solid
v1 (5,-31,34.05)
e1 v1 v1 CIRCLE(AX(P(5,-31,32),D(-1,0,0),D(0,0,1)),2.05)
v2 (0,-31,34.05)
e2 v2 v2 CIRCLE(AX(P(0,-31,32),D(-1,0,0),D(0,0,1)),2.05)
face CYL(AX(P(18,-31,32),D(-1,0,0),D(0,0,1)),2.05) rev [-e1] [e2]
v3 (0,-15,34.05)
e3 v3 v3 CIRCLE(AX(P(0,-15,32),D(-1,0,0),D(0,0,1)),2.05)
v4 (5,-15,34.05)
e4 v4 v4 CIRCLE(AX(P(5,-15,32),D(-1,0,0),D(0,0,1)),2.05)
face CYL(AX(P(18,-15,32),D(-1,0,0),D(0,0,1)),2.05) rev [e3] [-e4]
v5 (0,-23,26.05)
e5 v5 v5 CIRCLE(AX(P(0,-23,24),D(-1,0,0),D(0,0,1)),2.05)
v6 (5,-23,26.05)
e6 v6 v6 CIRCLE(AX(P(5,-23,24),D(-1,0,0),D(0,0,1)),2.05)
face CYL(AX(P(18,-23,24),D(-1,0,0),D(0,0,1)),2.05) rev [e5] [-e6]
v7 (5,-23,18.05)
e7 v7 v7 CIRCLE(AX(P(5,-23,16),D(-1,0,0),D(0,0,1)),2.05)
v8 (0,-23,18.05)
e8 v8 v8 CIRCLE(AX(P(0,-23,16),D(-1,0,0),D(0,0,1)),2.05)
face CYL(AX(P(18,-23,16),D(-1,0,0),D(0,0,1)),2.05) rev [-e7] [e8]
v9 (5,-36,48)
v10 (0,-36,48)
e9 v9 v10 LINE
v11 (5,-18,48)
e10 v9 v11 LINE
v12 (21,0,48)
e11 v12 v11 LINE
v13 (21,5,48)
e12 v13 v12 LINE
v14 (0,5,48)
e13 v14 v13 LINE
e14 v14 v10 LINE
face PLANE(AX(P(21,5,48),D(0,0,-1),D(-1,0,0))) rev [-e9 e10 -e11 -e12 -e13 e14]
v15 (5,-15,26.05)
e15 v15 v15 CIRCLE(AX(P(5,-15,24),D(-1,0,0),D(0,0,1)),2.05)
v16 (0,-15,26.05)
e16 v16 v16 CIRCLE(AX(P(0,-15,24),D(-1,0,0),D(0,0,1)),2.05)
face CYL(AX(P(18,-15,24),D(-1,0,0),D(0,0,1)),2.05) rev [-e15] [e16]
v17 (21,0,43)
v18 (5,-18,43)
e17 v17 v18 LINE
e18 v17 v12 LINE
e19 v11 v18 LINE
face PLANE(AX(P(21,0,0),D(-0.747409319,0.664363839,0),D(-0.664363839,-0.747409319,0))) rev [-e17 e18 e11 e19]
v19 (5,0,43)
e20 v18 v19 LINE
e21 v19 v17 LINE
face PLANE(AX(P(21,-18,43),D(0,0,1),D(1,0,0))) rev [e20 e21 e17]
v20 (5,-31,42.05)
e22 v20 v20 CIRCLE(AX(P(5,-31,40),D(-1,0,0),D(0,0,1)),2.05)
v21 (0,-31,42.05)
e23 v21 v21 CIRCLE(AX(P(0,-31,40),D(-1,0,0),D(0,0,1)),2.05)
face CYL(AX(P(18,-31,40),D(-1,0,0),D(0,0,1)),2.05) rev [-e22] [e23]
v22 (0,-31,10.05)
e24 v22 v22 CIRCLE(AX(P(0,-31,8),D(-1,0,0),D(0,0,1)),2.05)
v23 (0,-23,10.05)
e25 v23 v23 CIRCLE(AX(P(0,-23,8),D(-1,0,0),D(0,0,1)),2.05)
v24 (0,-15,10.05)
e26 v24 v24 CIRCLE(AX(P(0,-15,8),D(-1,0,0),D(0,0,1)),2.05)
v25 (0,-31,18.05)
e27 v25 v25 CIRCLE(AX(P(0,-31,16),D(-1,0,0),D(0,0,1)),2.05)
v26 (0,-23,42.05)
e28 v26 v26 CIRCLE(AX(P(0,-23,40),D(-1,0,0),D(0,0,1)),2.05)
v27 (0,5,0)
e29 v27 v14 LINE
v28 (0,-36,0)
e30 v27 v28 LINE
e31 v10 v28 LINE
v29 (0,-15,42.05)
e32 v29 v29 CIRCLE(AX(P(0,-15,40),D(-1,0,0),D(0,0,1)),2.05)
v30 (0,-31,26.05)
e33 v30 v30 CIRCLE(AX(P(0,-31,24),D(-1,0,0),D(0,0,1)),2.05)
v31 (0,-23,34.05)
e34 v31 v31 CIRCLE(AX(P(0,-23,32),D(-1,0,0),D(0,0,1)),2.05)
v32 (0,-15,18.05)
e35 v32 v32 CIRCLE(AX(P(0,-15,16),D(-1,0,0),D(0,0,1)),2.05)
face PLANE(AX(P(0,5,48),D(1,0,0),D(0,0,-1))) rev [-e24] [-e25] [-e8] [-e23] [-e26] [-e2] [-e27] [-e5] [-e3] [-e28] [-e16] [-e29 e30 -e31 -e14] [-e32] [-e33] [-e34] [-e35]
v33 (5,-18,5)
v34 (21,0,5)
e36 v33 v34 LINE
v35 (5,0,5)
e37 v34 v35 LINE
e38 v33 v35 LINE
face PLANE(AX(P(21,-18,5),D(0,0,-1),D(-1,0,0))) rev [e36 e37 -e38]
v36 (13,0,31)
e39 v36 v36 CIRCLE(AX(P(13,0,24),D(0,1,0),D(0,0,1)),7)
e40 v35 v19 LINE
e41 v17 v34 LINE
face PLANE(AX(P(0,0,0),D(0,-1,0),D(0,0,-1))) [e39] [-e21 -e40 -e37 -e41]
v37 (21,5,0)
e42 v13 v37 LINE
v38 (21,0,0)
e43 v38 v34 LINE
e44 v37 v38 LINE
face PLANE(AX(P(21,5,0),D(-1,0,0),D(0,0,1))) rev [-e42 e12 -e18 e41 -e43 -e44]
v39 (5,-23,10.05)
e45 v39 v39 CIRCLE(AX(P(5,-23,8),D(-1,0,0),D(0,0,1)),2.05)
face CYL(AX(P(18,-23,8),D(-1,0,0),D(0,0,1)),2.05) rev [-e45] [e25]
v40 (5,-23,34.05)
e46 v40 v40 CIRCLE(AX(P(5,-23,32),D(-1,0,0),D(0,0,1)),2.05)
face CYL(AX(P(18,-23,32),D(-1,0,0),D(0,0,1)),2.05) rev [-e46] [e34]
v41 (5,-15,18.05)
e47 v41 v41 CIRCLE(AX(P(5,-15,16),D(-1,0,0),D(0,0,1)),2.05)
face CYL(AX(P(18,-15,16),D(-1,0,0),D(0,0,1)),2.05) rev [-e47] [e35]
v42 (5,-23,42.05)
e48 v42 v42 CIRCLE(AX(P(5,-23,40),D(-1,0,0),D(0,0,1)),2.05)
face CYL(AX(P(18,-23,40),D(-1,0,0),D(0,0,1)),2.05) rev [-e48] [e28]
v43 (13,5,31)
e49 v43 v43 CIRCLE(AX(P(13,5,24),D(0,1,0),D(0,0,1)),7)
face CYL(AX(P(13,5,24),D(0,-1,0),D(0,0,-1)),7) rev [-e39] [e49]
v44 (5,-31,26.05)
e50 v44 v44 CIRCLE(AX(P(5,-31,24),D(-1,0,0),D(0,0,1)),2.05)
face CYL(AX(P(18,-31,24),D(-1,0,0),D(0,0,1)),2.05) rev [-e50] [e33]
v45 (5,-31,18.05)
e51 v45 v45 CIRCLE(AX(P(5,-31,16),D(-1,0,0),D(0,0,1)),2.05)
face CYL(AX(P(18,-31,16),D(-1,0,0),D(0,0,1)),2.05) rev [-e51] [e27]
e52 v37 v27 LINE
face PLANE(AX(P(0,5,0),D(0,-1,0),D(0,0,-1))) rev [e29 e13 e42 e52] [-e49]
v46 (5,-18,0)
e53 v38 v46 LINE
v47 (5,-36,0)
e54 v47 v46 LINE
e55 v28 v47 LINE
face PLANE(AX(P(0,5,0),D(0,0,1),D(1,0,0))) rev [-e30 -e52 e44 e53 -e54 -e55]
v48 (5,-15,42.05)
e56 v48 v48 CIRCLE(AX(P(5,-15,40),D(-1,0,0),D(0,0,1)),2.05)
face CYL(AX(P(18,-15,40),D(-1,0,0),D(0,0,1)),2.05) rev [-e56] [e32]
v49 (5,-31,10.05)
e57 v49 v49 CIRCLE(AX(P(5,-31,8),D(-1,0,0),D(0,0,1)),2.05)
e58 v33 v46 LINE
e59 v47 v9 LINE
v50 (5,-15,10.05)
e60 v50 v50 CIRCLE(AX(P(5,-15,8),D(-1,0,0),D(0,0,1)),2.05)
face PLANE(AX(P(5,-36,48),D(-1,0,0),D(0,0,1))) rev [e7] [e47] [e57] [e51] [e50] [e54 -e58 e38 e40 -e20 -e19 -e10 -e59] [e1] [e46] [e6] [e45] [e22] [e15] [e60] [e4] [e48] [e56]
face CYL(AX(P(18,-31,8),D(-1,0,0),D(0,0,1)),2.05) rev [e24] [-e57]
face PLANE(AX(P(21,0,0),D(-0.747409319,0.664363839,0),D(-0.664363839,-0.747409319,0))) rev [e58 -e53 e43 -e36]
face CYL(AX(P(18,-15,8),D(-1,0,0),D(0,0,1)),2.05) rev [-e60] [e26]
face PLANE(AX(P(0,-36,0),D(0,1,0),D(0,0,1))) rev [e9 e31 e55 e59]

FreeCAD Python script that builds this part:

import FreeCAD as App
import Part
import Sketcher

V = App.Vector

doc = App.newDocument("Part")
body = doc.addObject("PartDesign::Body", "Body")

sketch1 = body.newObject("Sketcher::SketchObject", "Sketch")
sketch1.AttachmentSupport = (doc.getObject("XZ_Plane"), [""])
sketch1.MapMode = "FlatFace"
sketch1.addGeometry([
    Part.LineSegment(V(0, 0, 0), V(0, 48, 0)),
    Part.LineSegment(V(0, 48, 0), V(21, 48, 0)),
    Part.LineSegment(V(21, 48, 0), V(21, 0, 0)),
    Part.LineSegment(V(21, 0, 0), V(0, 0, 0)),
    Part.Circle(V(13, 24, 0), V(0, 0, 1), 7),
], False)
sketch1.addConstraint([
    Sketcher.Constraint("Coincident", 0, 2, 1, 1),
    Sketcher.Constraint("Coincident", 1, 2, 2, 1),
    Sketcher.Constraint("Coincident", 2, 2, 3, 1),
    Sketcher.Constraint("Coincident", 3, 2, 0, 1),
    Sketcher.Constraint("Vertical", 0),
    Sketcher.Constraint("Horizontal", 1),
    Sketcher.Constraint("Vertical", 2),
    Sketcher.Constraint("Horizontal", 3),
    Sketcher.Constraint("Coincident", 3, 2, -1, 1),
    Sketcher.Constraint("Diameter", 4, 14.0),
    Sketcher.Constraint("DistanceX", 1, 1, 1, 2, 21.0),
    Sketcher.Constraint("DistanceY", 0, 1, 0, 2, 48.0),
    Sketcher.Constraint("DistanceX", -1, 1, 4, 3, 13.0),
    Sketcher.Constraint("DistanceY", -1, 1, 4, 3, 24.0),
])
pad1 = body.newObject("PartDesign::Pad", "Pad")
pad1.Profile = sketch1
pad1.Length = 5
pad1.Reversed = True

sketch2 = body.newObject("Sketcher::SketchObject", "Sketch001")
sketch2.AttachmentSupport = (doc.getObject("XZ_Plane"), [""])
sketch2.MapMode = "FlatFace"
sketch2.addGeometry([
    Part.LineSegment(V(0, 48, 0), V(0, 0, 0)),
    Part.LineSegment(V(0, 0, 0), V(5, 0, 0)),
    Part.LineSegment(V(5, 0, 0), V(5, 48, 0)),
    Part.LineSegment(V(5, 48, 0), V(0, 48, 0)),
], False)
sketch2.addConstraint([
    Sketcher.Constraint("Coincident", 0, 2, 1, 1),
    Sketcher.Constraint("Coincident", 1, 2, 2, 1),
    Sketcher.Constraint("Coincident", 2, 2, 3, 1),
    Sketcher.Constraint("Coincident", 3, 2, 0, 1),
    Sketcher.Constraint("Vertical", 0),
    Sketcher.Constraint("Horizontal", 1),
    Sketcher.Constraint("Vertical", 2),
    Sketcher.Constraint("Horizontal", 3),
    Sketcher.Constraint("Coincident", 0, 2, -1, 1),
    Sketcher.Constraint("DistanceX", 1, 1, 1, 2, 5.0),
    Sketcher.Constraint("DistanceY", 0, 2, 0, 1, 48.0),
])
pad2 = body.newObject("PartDesign::Pad", "Pad001")
pad2.Profile = sketch2
pad2.Length = 36

sketch3 = body.newObject("Sketcher::SketchObject", "Sketch002")
sketch3.AttachmentSupport = (doc.getObject("XZ_Plane"), [""])
sketch3.MapMode = "FlatFace"
sketch3.addGeometry([
    Part.LineSegment(V(5, 48, 0), V(5, 43, 0)),
    Part.LineSegment(V(5, 43, 0), V(21, 43, 0)),
    Part.LineSegment(V(21, 43, 0), V(21, 48, 0)),
    Part.LineSegment(V(21, 48, 0), V(5, 48, 0)),
    Part.LineSegment(V(5, 5, 0), V(5, 0, 0)),
    Part.LineSegment(V(5, 0, 0), V(21, 0, 0)),
    Part.LineSegment(V(21, 0, 0), V(21, 5, 0)),
    Part.LineSegment(V(21, 5, 0), V(5, 5, 0)),
], False)
sketch3.addConstraint([
    Sketcher.Constraint("Coincident", 0, 2, 1, 1),
    Sketcher.Constraint("Coincident", 1, 2, 2, 1),
    Sketcher.Constraint("Coincident", 2, 2, 3, 1),
    Sketcher.Constraint("Coincident", 3, 2, 0, 1),
    Sketcher.Constraint("Coincident", 4, 2, 5, 1),
    Sketcher.Constraint("Coincident", 5, 2, 6, 1),
    Sketcher.Constraint("Coincident", 6, 2, 7, 1),
    Sketcher.Constraint("Coincident", 7, 2, 4, 1),
    Sketcher.Constraint("Vertical", 0),
    Sketcher.Constraint("Horizontal", 1),
    Sketcher.Constraint("Vertical", 2),
    Sketcher.Constraint("Horizontal", 3),
    Sketcher.Constraint("Vertical", 4),
    Sketcher.Constraint("Horizontal", 5),
    Sketcher.Constraint("Vertical", 6),
    Sketcher.Constraint("Horizontal", 7),
    Sketcher.Constraint("PointOnObject", 4, 2, -1),
    Sketcher.Constraint("Vertical", 3, 2, 4, 2),
    Sketcher.Constraint("Vertical", 2, 2, 5, 2),
    Sketcher.Constraint("Equal", 2, 4),
    Sketcher.Constraint("DistanceX", 1, 1, 1, 2, 16.0),
    Sketcher.Constraint("DistanceY", 0, 2, 0, 1, 5.0),
    Sketcher.Constraint("DistanceX", -1, 1, 0, 2, 5.0),
    Sketcher.Constraint("DistanceY", -1, 1, 0, 2, 43.0),
])
pad3 = body.newObject("PartDesign::Pad", "Pad002")
pad3.Profile = sketch3
pad3.Length = 18

sketch4 = body.newObject("Sketcher::SketchObject", "Sketch003")
sketch4.AttachmentSupport = (doc.getObject("XY_Plane"), [""])
sketch4.MapMode = "FlatFace"
sketch4.AttachmentOffset = App.Placement(V(0, 0, 48), App.Rotation())
sketch4.addGeometry([
    Part.LineSegment(V(21, 0, 0), V(5, -18, 0)),
    Part.LineSegment(V(5, -18, 0), V(21, -18, 0)),
    Part.LineSegment(V(21, -18, 0), V(21, 0, 0)),
], False)
sketch4.addConstraint([
    Sketcher.Constraint("Coincident", 0, 2, 1, 1),
    Sketcher.Constraint("Coincident", 1, 2, 2, 1),
    Sketcher.Constraint("Coincident", 2, 2, 0, 1),
    Sketcher.Constraint("Horizontal", 1),
    Sketcher.Constraint("Vertical", 2),
    Sketcher.Constraint("PointOnObject", 2, 2, -1),
    Sketcher.Constraint("DistanceX", 1, 1, 1, 2, 16.0),
    Sketcher.Constraint("DistanceY", 2, 1, 2, 2, 18.0),
    Sketcher.Constraint("DistanceX", -1, 1, 0, 2, 5.0),
])
pocket1 = body.newObject("PartDesign::Pocket", "Pocket")
pocket1.Profile = sketch4
pocket1.Type = "ThroughAll"

sketch5 = body.newObject("Sketcher::SketchObject", "Sketch004")
sketch5.AttachmentSupport = (doc.getObject("YZ_Plane"), [""])
sketch5.MapMode = "FlatFace"
sketch5.addGeometry([
    Part.Circle(V(-31, 8, 0), V(0, 0, 1), 2),
    Part.Circle(V(-31, 16, 0), V(0, 0, 1), 2),
    Part.Circle(V(-31, 24, 0), V(0, 0, 1), 2),
    Part.Circle(V(-31, 32, 0), V(0, 0, 1), 2),
    Part.Circle(V(-31, 40, 0), V(0, 0, 1), 2),
    Part.Circle(V(-23, 16, 0), V(0, 0, 1), 2),
    Part.Circle(V(-23, 24, 0), V(0, 0, 1), 2),
    Part.Circle(V(-23, 32, 0), V(0, 0, 1), 2),
    Part.Circle(V(-23, 40, 0), V(0, 0, 1), 2),
    Part.Circle(V(-15, 16, 0), V(0, 0, 1), 2),
    Part.Circle(V(-15, 24, 0), V(0, 0, 1), 2),
    Part.Circle(V(-15, 32, 0), V(0, 0, 1), 2),
    Part.Circle(V(-15, 40, 0), V(0, 0, 1), 2),
    Part.Circle(V(-23, 8, 0), V(0, 0, 1), 2),
    Part.Circle(V(-15, 8, 0), V(0, 0, 1), 2),
], False)
sketch5.addConstraint([
    Sketcher.Constraint("Equal", 0, 1),
    Sketcher.Constraint("Equal", 1, 2),
    Sketcher.Constraint("Equal", 2, 3),
    Sketcher.Constraint("Equal", 3, 4),
    Sketcher.Constraint("Equal", 4, 5),
    Sketcher.Constraint("Equal", 5, 6),
    Sketcher.Constraint("Equal", 6, 7),
    Sketcher.Constraint("Equal", 7, 8),
    Sketcher.Constraint("Equal", 8, 9),
    Sketcher.Constraint("Equal", 9, 10),
    Sketcher.Constraint("Equal", 10, 11),
    Sketcher.Constraint("Equal", 11, 12),
    Sketcher.Constraint("Equal", 12, 13),
    Sketcher.Constraint("Equal", 13, 14),
    Sketcher.Constraint("Horizontal", 1, 3, 5, 3),
    Sketcher.Constraint("Horizontal", 2, 3, 6, 3),
    Sketcher.Constraint("Horizontal", 3, 3, 7, 3),
    Sketcher.Constraint("Horizontal", 4, 3, 8, 3),
    Sketcher.Constraint("Horizontal", 5, 3, 9, 3),
    Sketcher.Constraint("Horizontal", 6, 3, 10, 3),
    Sketcher.Constraint("Horizontal", 7, 3, 11, 3),
    Sketcher.Constraint("Horizontal", 8, 3, 12, 3),
    Sketcher.Constraint("Horizontal", 0, 3, 13, 3),
    Sketcher.Constraint("Horizontal", 13, 3, 14, 3),
    Sketcher.Constraint("Vertical", 0, 3, 1, 3),
    Sketcher.Constraint("Vertical", 1, 3, 2, 3),
    Sketcher.Constraint("Vertical", 2, 3, 3, 3),
    Sketcher.Constraint("Vertical", 3, 3, 4, 3),
    Sketcher.Constraint("Vertical", 5, 3, 6, 3),
    Sketcher.Constraint("Vertical", 6, 3, 7, 3),
    Sketcher.Constraint("Vertical", 7, 3, 8, 3),
    Sketcher.Constraint("Vertical", 9, 3, 10, 3),
    Sketcher.Constraint("Vertical", 10, 3, 11, 3),
    Sketcher.Constraint("Vertical", 11, 3, 12, 3),
    Sketcher.Constraint("Vertical", 8, 3, 13, 3),
    Sketcher.Constraint("Vertical", 12, 3, 14, 3),
    Sketcher.Constraint("Diameter", 0, 4.1),
    Sketcher.Constraint("DistanceX", 0, 3, -1, 1, 31.0),
    Sketcher.Constraint("DistanceY", -1, 1, 0, 3, 8.0),
    Sketcher.Constraint("DistanceY", -1, 1, 1, 3, 16.0),
    Sketcher.Constraint("DistanceY", -1, 1, 2, 3, 24.0),
    Sketcher.Constraint("DistanceY", -1, 1, 3, 3, 32.0),
    Sketcher.Constraint("DistanceY", -1, 1, 4, 3, 40.0),
    Sketcher.Constraint("DistanceX", 5, 3, -1, 1, 23.0),
    Sketcher.Constraint("DistanceX", 9, 3, -1, 1, 15.0),
])
pocket2 = body.newObject("PartDesign::Pocket", "Pocket001")
pocket2.Profile = sketch5
pocket2.Length = 18
pocket2.Reversed = True

doc.recompute()
